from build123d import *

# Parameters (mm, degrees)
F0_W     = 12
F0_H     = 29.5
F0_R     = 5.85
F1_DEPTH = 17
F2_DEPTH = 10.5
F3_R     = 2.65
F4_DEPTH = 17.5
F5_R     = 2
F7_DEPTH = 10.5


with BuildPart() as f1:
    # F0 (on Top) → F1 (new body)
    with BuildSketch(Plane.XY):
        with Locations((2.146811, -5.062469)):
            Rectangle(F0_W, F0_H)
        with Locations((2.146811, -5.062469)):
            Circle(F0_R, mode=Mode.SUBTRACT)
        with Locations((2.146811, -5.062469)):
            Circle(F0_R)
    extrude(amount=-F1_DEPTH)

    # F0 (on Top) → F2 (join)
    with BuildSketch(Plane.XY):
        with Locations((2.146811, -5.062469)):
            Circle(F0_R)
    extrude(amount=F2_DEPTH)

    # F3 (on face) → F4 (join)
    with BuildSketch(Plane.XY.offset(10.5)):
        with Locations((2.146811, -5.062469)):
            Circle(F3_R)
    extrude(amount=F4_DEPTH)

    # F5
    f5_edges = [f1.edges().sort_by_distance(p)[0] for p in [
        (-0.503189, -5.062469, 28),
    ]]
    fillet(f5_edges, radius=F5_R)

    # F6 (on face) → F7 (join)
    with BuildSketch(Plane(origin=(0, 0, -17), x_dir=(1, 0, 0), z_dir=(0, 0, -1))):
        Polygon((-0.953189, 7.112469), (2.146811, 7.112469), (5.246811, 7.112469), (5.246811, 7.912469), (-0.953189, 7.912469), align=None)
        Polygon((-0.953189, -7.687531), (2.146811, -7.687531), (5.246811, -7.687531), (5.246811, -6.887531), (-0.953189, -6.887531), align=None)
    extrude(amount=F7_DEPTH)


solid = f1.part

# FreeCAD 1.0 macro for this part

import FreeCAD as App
import Part
import Sketcher


def edges_at(feature, points):
    """Names of the edges that pass closest to the given points."""
    edges = feature.Shape.Edges
    near = lambda p: min(range(len(edges)), key=lambda i: edges[i].distToShape(Part.Vertex(*p))[0])
    return sorted({f"Edge{near(p) + 1}" for p in points})

doc = App.newDocument("Part")
body = doc.addObject("PartDesign::Body", "Body")

sketch1 = body.newObject("Sketcher::SketchObject", "Sketch")
sketch1.AttachmentSupport = (doc.getObject("XY_Plane"), [""])
sketch1.MapMode = "FlatFace"
sketch1.addGeometry([
    Part.LineSegment(App.Vector(-4, 10, 0), App.Vector(-4, -20, 0)),
    Part.LineSegment(App.Vector(-4, -20, 0), App.Vector(8, -20, 0)),
    Part.LineSegment(App.Vector(8, -20, 0), App.Vector(8, 10, 0)),
    Part.LineSegment(App.Vector(8, 10, 0), App.Vector(-4, 10, 0)),
], False)
sketch1.addConstraint([
    Sketcher.Constraint("Coincident", 0, 2, 1, 1),
    Sketcher.Constraint("Coincident", 1, 2, 2, 1),
    Sketcher.Constraint("Coincident", 2, 2, 3, 1),
    Sketcher.Constraint("Coincident", 3, 2, 0, 1),
    Sketcher.Constraint("Vertical", 0),
    Sketcher.Constraint("Horizontal", 1),
    Sketcher.Constraint("Vertical", 2),
    Sketcher.Constraint("Horizontal", 3),
    Sketcher.Constraint("DistanceX", 1, 1, 1, 2, 12.0),
    Sketcher.Constraint("DistanceY", 0, 2, 0, 1, 29.5),
    Sketcher.Constraint("DistanceX", 0, 2, -1, 1, 3.853189),
    Sketcher.Constraint("DistanceY", 0, 2, -1, 1, 19.812469),
])
pad1 = body.newObject("PartDesign::Pad", "Pad")
pad1.Profile = sketch1
pad1.Length = 17
pad1.Reversed = True

sketch2 = body.newObject("Sketcher::SketchObject", "Sketch001")
sketch2.AttachmentSupport = (doc.getObject("XY_Plane"), [""])
sketch2.MapMode = "FlatFace"
sketch2.addGeometry(Part.Circle(App.Vector(2, -5, 0), App.Vector(0, 0, 1), 6), False)
sketch2.addConstraint([
    Sketcher.Constraint("Diameter", 0, 11.7),
    Sketcher.Constraint("DistanceX", -1, 1, 0, 3, 2.146811),
    Sketcher.Constraint("DistanceY", 0, 3, -1, 1, 5.062469),
])
pad2 = body.newObject("PartDesign::Pad", "Pad001")
pad2.Profile = sketch2
pad2.Length = 10.5

sketch3 = body.newObject("Sketcher::SketchObject", "Sketch002")
sketch3.AttachmentSupport = (doc.getObject("XY_Plane"), [""])
sketch3.MapMode = "FlatFace"
sketch3.AttachmentOffset = App.Placement(App.Vector(0, 0, 10.5), App.Rotation())
sketch3.addGeometry(Part.Circle(App.Vector(2.1, -5.1, 0), App.Vector(0, 0, 1), 2.6), False)
sketch3.addConstraint([
    Sketcher.Constraint("Diameter", 0, 5.3),
    Sketcher.Constraint("DistanceX", -1, 1, 0, 3, 2.146811),
    Sketcher.Constraint("DistanceY", 0, 3, -1, 1, 5.062469),
])
pad3 = body.newObject("PartDesign::Pad", "Pad002")
pad3.Profile = sketch3
pad3.Length = 17.5
doc.recompute()

fillet = body.newObject("PartDesign::Fillet", "Fillet")
fillet.Base = (pad3, edges_at(pad3, [(-0.503, -5.062, 28)]))
fillet.Radius = 2

sketch4 = body.newObject("Sketcher::SketchObject", "Sketch003")
sketch4.AttachmentSupport = (doc.getObject("XY_Plane"), [""])
sketch4.MapMode = "FlatFace"
sketch4.AttachmentOffset = App.Placement(App.Vector(0, 0, -17), App.Rotation())
sketch4.addGeometry([
    Part.LineSegment(App.Vector(-1, -7.1, 0), App.Vector(5.2, -7.1, 0)),
    Part.LineSegment(App.Vector(5.2, -7.1, 0), App.Vector(5.2, -7.9, 0)),
    Part.LineSegment(App.Vector(5.2, -7.9, 0), App.Vector(-1, -7.9, 0)),
    Part.LineSegment(App.Vector(-1, -7.9, 0), App.Vector(-1, -7.1, 0)),
    Part.LineSegment(App.Vector(-1, 7.7, 0), App.Vector(5.2, 7.7, 0)),
    Part.LineSegment(App.Vector(5.2, 7.7, 0), App.Vector(5.2, 6.9, 0)),
    Part.LineSegment(App.Vector(5.2, 6.9, 0), App.Vector(-1, 6.9, 0)),
    Part.LineSegment(App.Vector(-1, 6.9, 0), App.Vector(-1, 7.7, 0)),
], False)
sketch4.addConstraint([
    Sketcher.Constraint("Coincident", 0, 2, 1, 1),
    Sketcher.Constraint("Coincident", 1, 2, 2, 1),
    Sketcher.Constraint("Coincident", 2, 2, 3, 1),
    Sketcher.Constraint("Coincident", 3, 2, 0, 1),
    Sketcher.Constraint("Coincident", 4, 2, 5, 1),
    Sketcher.Constraint("Coincident", 5, 2, 6, 1),
    Sketcher.Constraint("Coincident", 6, 2, 7, 1),
    Sketcher.Constraint("Coincident", 7, 2, 4, 1),
    Sketcher.Constraint("Horizontal", 0),
    Sketcher.Constraint("Vertical", 1),
    Sketcher.Constraint("Horizontal", 2),
    Sketcher.Constraint("Vertical", 3),
    Sketcher.Constraint("Horizontal", 4),
    Sketcher.Constraint("Vertical", 5),
    Sketcher.Constraint("Horizontal", 6),
    Sketcher.Constraint("Vertical", 7),
    Sketcher.Constraint("Vertical", 1, 2, 4, 2),
    Sketcher.Constraint("Vertical", 3, 2, 6, 2),
    Sketcher.Constraint("Equal", 3, 5),
    Sketcher.Constraint("DistanceX", 0, 1, 0, 2, 6.2),
    Sketcher.Constraint("DistanceY", 1, 2, 1, 1, 0.8),
    Sketcher.Constraint("DistanceY", 0, 2, 5, 2, 14.0),
    Sketcher.Constraint("DistanceX", -1, 1, 0, 2, 5.246811),
    Sketcher.Constraint("DistanceY", 0, 2, -1, 1, 7.112469),
])
pad4 = body.newObject("PartDesign::Pad", "Pad003")
pad4.Profile = sketch4
pad4.Length = 10.5
pad4.Reversed = True

doc.recompute()
